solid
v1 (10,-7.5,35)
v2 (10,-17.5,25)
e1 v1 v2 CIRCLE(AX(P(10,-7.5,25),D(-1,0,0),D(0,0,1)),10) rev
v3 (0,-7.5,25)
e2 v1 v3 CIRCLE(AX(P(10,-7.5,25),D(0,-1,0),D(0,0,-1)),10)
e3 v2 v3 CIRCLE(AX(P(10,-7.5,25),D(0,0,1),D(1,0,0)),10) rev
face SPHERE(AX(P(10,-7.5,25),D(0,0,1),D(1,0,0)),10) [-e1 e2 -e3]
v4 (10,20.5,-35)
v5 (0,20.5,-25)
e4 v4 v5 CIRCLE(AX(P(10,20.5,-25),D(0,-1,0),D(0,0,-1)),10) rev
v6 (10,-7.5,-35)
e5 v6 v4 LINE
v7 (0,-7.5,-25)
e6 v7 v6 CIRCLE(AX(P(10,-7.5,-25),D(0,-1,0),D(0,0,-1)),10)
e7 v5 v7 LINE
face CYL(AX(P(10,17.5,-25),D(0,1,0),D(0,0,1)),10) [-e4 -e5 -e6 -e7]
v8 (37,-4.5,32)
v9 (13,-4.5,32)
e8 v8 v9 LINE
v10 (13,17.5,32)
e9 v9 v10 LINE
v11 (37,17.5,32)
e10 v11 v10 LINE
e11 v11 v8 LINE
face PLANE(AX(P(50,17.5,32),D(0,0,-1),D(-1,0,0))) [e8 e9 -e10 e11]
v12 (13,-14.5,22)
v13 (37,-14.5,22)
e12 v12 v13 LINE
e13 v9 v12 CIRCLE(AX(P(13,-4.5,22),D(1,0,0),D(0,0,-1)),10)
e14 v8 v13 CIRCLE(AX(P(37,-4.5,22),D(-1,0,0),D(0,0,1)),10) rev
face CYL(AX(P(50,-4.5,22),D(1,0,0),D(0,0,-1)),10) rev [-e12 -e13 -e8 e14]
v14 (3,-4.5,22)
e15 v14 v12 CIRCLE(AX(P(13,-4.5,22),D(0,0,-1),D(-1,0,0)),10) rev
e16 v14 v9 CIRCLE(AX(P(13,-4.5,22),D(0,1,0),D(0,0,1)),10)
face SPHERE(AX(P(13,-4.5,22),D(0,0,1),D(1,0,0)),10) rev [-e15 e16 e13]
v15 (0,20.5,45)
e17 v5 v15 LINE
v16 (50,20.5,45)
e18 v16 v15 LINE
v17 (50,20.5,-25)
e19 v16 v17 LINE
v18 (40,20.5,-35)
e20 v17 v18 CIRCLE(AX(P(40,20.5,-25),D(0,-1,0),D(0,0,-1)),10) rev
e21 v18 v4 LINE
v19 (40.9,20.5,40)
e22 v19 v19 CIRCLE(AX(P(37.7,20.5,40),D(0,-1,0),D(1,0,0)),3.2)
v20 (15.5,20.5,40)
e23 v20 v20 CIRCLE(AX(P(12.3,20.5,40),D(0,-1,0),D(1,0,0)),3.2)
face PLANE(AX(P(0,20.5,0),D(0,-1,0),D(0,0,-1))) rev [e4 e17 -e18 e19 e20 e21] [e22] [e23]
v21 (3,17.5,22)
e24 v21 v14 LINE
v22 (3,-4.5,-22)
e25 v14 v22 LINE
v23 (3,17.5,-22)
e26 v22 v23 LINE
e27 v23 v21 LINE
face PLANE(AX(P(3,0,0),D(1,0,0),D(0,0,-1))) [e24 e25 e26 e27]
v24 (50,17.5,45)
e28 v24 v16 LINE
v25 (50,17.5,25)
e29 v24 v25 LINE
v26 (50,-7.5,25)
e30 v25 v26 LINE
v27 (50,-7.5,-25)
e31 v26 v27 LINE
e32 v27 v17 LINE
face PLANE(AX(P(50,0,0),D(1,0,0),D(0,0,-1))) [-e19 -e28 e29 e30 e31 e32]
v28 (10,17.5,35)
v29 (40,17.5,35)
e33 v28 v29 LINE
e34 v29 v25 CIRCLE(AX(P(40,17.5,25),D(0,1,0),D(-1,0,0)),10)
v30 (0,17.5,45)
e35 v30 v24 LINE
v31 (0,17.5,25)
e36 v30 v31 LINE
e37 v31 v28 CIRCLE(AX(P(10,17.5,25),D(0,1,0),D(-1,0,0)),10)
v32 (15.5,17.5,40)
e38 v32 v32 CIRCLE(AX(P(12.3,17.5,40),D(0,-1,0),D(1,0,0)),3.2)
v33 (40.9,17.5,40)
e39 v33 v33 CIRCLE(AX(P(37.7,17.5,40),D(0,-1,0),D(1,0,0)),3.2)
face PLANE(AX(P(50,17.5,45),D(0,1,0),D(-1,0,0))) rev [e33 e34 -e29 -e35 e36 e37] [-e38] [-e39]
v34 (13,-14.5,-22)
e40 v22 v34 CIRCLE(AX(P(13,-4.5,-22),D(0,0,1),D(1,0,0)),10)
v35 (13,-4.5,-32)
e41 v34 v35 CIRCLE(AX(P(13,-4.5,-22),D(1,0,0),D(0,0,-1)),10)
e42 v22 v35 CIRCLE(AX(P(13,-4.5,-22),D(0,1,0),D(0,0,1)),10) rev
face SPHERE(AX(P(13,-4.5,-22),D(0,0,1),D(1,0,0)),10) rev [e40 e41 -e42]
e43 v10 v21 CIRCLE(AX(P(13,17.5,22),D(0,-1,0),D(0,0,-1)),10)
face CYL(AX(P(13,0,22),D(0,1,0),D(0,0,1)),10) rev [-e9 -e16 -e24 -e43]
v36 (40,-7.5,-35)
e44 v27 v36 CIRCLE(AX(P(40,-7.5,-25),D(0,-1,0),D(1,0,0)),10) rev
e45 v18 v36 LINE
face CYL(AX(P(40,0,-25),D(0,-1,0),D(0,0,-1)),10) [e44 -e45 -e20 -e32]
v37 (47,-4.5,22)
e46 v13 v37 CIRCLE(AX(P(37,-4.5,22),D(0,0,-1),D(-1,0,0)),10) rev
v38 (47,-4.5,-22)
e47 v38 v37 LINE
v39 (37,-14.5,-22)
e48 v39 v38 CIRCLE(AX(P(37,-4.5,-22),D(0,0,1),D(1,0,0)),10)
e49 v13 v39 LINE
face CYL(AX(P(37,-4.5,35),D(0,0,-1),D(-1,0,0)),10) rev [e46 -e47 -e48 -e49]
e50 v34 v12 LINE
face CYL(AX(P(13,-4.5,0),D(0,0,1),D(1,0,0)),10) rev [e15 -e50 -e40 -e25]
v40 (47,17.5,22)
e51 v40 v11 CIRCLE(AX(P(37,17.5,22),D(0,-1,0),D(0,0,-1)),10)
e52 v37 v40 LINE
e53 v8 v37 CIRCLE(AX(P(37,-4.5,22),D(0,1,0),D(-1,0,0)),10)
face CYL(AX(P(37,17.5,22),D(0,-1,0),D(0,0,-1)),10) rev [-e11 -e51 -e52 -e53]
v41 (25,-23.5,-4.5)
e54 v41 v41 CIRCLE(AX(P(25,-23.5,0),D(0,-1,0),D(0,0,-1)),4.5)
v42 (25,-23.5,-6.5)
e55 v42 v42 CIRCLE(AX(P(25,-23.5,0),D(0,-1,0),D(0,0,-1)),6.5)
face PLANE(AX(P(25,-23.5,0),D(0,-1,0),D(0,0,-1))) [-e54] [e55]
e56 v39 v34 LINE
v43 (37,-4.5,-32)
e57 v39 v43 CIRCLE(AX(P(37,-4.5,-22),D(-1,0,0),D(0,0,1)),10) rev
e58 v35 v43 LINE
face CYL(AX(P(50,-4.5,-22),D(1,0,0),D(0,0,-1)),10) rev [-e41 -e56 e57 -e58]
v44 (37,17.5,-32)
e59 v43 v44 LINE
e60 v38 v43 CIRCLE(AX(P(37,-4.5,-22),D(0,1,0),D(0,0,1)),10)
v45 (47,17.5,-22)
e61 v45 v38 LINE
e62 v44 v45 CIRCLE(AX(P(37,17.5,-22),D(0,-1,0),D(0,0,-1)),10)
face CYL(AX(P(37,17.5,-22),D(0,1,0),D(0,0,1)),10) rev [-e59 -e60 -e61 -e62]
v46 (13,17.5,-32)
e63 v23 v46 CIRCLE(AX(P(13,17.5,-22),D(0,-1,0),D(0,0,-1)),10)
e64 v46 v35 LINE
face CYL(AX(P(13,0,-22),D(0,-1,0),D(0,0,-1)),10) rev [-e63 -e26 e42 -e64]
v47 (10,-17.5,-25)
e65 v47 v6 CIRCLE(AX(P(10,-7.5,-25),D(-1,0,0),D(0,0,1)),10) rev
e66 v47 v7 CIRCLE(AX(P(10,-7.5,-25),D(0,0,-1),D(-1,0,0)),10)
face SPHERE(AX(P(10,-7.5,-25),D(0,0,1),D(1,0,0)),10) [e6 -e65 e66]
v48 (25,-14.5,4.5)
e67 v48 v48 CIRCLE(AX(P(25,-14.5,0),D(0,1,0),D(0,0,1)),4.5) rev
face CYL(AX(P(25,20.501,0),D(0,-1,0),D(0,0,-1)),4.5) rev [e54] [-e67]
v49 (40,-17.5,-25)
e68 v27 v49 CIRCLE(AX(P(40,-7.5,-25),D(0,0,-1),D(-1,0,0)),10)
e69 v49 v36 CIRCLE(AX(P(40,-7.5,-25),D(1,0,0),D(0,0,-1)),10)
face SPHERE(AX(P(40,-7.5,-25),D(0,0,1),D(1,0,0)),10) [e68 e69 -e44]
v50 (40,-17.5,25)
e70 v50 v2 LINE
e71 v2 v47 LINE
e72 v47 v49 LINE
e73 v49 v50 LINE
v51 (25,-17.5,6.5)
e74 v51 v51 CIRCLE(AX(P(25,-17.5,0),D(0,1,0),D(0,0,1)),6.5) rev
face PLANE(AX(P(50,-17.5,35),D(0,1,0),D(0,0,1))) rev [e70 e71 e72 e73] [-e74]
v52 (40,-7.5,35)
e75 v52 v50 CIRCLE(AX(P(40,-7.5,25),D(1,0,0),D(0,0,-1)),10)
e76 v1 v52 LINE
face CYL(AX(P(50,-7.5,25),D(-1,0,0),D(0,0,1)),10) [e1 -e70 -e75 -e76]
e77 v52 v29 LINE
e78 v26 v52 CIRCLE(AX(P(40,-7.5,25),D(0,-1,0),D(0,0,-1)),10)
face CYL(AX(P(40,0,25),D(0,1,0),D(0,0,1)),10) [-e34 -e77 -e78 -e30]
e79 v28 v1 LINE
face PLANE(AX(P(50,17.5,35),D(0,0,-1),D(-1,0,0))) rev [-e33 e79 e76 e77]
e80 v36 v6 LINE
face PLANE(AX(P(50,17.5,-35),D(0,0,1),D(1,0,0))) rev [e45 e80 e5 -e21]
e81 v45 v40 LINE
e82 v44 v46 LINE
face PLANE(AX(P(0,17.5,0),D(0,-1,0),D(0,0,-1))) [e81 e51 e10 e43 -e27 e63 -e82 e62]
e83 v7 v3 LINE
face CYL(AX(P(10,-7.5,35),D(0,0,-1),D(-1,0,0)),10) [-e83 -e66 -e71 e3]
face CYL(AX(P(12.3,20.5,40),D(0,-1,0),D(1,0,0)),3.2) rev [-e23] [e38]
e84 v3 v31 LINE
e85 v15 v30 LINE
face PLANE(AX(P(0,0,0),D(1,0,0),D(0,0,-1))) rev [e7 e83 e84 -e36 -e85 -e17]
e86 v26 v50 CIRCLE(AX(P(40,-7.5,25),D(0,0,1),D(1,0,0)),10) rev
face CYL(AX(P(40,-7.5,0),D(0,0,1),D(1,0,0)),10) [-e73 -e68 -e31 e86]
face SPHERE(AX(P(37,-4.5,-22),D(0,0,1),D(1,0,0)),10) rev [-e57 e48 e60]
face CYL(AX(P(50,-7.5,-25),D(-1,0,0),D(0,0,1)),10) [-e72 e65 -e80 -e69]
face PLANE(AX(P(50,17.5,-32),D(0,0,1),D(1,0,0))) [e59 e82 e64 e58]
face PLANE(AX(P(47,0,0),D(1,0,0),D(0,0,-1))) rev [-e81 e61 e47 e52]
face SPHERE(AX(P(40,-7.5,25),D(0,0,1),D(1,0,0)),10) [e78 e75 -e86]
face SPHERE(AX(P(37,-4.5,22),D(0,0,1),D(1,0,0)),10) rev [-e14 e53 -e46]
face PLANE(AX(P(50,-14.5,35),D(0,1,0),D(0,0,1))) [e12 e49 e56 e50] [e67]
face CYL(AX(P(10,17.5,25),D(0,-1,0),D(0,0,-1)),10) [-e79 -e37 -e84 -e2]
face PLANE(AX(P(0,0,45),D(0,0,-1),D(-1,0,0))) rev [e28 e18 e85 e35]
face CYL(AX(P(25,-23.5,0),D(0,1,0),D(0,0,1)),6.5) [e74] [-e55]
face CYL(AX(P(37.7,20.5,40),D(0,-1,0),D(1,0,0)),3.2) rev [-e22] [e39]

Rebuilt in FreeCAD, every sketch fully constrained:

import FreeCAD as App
import Part
import Sketcher

V = App.Vector
Q = App.Units.Quantity


def edges_at(feature, points):
    """Names of the edges that pass closest to the given points."""
    edges = feature.Shape.Edges
    near = lambda p: min(range(len(edges)), key=lambda i: edges[i].distToShape(Part.Vertex(*p))[0])
    return sorted({f"Edge{near(p) + 1}" for p in points})


def faces_at(feature, points):
    """Names of the faces that lie closest to the given points."""
    faces = feature.Shape.Faces
    near = lambda p: min(range(len(faces)), key=lambda i: faces[i].distToShape(Part.Vertex(*p))[0])
    return sorted({f"Face{near(p) + 1}" for p in points})


def add_polygon(sketch, points):
    """Adds a closed chain of lines whose ends are joined by coincident constraints."""
    first, n = sketch.GeometryCount, len(points)
    for a, b in zip(points, points[1:] + points[:1]):
        sketch.addGeometry(Part.LineSegment(App.Vector(*a, 0), App.Vector(*b, 0)), False)
    for i in range(n):
        sketch.addConstraint(Sketcher.Constraint("Coincident", first + i, 2, first + (i + 1) % n, 1))

doc = App.newDocument("Part")
params = doc.addObject("Spreadsheet::Sheet", "Params")
for row, (alias, value) in enumerate([
    ("sketch1_width", "35 mm"),
    ("sketch1_height", "70 mm"),
    ("pad1_length", "50 mm"),
    ("thickness_wall", "3 mm"),
    ("sketch2_width", "50 mm"),
    ("sketch2_height", "70 mm"),
    ("pad2_length", "3 mm"),
    ("sketch3_diameter", "13 mm"),
    ("pad3_length", "6 mm"),
    ("sketch4_diameter", "9 mm"),
    ("sketch5_width", "50 mm"),
    ("sketch5_height", "3 mm"),
    ("pad4_length", "10 mm"),
    ("sketch6_diameter", "6.4 mm"),
    ("sketch7_diameter", "6.4 mm"),
    ("fillet_radius", "10 mm"),
    ("fillet2_radius", "10 mm"),
], start=1):
    params.set(f"A{row}", alias)
    params.set(f"B{row}", "=" + value)
    params.setAlias(f"B{row}", alias)

body = doc.addObject("PartDesign::Body", "Body")

sketch1 = body.newObject("Sketcher::SketchObject", "Sketch")
sketch1.AttachmentSupport = (doc.getObject("YZ_Plane"), [""])
sketch1.MapMode = "FlatFace"
add_polygon(sketch1, [(18, 35), (-18, 35), (-18, -35), (18, -35)])
sketch1.addConstraint([
    Sketcher.Constraint("Horizontal", 0),
    Sketcher.Constraint("Vertical", 1),
    Sketcher.Constraint("Horizontal", 2),
    Sketcher.Constraint("Vertical", 3),
    Sketcher.Constraint("Symmetric", 0, 2, 2, 2, -1, 1),
    Sketcher.Constraint("DistanceX", 0, 2, 0, 1, Q("35 mm")),
    Sketcher.Constraint("DistanceY", 1, 2, 1, 1, Q("70 mm")),
])
sketch1.setExpression("Constraints[9]", "Params.sketch1_width")
sketch1.setExpression("Constraints[10]", "Params.sketch1_height")
pad1 = body.newObject("PartDesign::Pad", "Pad")
pad1.Profile = sketch1
pad1.setExpression("Length", "Params.pad1_length")
doc.recompute()

thickness = body.newObject("PartDesign::Thickness", "Thickness")
thickness.Base = (pad1, faces_at(pad1, [(25, 17.5, 0)]))
thickness.setExpression("Value", "Params.thickness_wall")
thickness.Reversed = True
thickness.Join = "Intersection"

sketch2 = body.newObject("Sketcher::SketchObject", "Sketch001")
sketch2.AttachmentSupport = (doc.getObject("XZ_Plane"), [""])
sketch2.MapMode = "FlatFace"
sketch2.AttachmentOffset = App.Placement(V(0, 0, -17.5), App.Rotation())
add_polygon(sketch2, [(0, -35), (0, 35), (50, 35), (50, -35)])
sketch2.addConstraint([
    Sketcher.Constraint("Vertical", 0),
    Sketcher.Constraint("Horizontal", 1),
    Sketcher.Constraint("Vertical", 2),
    Sketcher.Constraint("Horizontal", 3),
    Sketcher.Constraint("Symmetric", 0, 2, 3, 2, -1, 1),
    Sketcher.Constraint("DistanceX", 1, 1, 1, 2, Q("50 mm")),
    Sketcher.Constraint("DistanceY", 0, 1, 0, 2, Q("70 mm")),
])
sketch2.setExpression("Constraints[9]", "Params.sketch2_width")
sketch2.setExpression("Constraints[10]", "Params.sketch2_height")
pad2 = body.newObject("PartDesign::Pad", "Pad001")
pad2.Profile = sketch2
pad2.setExpression("Length", "Params.pad2_length")
pad2.Reversed = True

sketch3 = body.newObject("Sketcher::SketchObject", "Sketch002")
sketch3.AttachmentSupport = (doc.getObject("XZ_Plane"), [""])
sketch3.MapMode = "FlatFace"
sketch3.AttachmentOffset = App.Placement(V(0, 0, 17.5), App.Rotation())
sketch3.addGeometry(Part.Circle(V(25, 0, 0), V(0, 0, 1), 6), False)
sketch3.addConstraint([
    Sketcher.Constraint("PointOnObject", 0, 3, -1),
    Sketcher.Constraint("Diameter", 0, Q("13 mm")),
    Sketcher.Constraint("DistanceX", -1, 1, 0, 3, Q("25 mm")),
])
sketch3.setExpression("Constraints[1]", "Params.sketch3_diameter")
pad3 = body.newObject("PartDesign::Pad", "Pad002")
pad3.Profile = sketch3
pad3.setExpression("Length", "Params.pad3_length")

sketch4 = body.newObject("Sketcher::SketchObject", "Sketch003")
sketch4.AttachmentSupport = (doc.getObject("XZ_Plane"), [""])
sketch4.MapMode = "FlatFace"
sketch4.AttachmentOffset = App.Placement(V(0, 0, 23.5), App.Rotation())
sketch4.addGeometry(Part.Circle(V(25, 0, 0), V(0, 0, 1), 4.5), False)
sketch4.addConstraint([
    Sketcher.Constraint("PointOnObject", 0, 3, -1),
    Sketcher.Constraint("Diameter", 0, Q("9 mm")),
    Sketcher.Constraint("DistanceX", -1, 1, 0, 3, Q("25 mm")),
])
sketch4.setExpression("Constraints[1]", "Params.sketch4_diameter")
pocket1 = body.newObject("PartDesign::Pocket", "Pocket")
pocket1.Profile = sketch4
pocket1.Type = "UpToFirst"

sketch5 = body.newObject("Sketcher::SketchObject", "Sketch004")
sketch5.AttachmentSupport = (doc.getObject("XY_Plane"), [""])
sketch5.MapMode = "FlatFace"
sketch5.AttachmentOffset = App.Placement(V(0, 0, 35), App.Rotation())
add_polygon(sketch5, [(0, 20.5), (0, 17.5), (50, 17.5), (50, 20.5)])
sketch5.addConstraint([
    Sketcher.Constraint("Vertical", 0),
    Sketcher.Constraint("Horizontal", 1),
    Sketcher.Constraint("Vertical", 2),
    Sketcher.Constraint("Horizontal", 3),
    Sketcher.Constraint("PointOnObject", 0, 2, -2),
    Sketcher.Constraint("DistanceX", 1, 1, 1, 2, Q("50 mm")),
    Sketcher.Constraint("DistanceY", 0, 2, 0, 1, Q("3 mm")),
    Sketcher.Constraint("DistanceY", -1, 1, 0, 2, Q("17.5 mm")),
])
sketch5.setExpression("Constraints[9]", "Params.sketch5_width")
sketch5.setExpression("Constraints[10]", "Params.sketch5_height")
pad4 = body.newObject("PartDesign::Pad", "Pad003")
pad4.Profile = sketch5
pad4.setExpression("Length", "Params.pad4_length")

sketch6 = body.newObject("Sketcher::SketchObject", "Sketch005")
sketch6.AttachmentSupport = (doc.getObject("XZ_Plane"), [""])
sketch6.MapMode = "FlatFace"
sketch6.AttachmentOffset = App.Placement(V(0, 0, -17.5), App.Rotation())
sketch6.addGeometry(Part.Circle(V(12.3, 40, 0), V(0, 0, 1), 3.2), False)
sketch6.addConstraint([
    Sketcher.Constraint("Diameter", 0, Q("6.4 mm")),
    Sketcher.Constraint("DistanceY", -1, 1, 0, 3, Q("40 mm")),
    Sketcher.Constraint("DistanceX", -1, 1, 0, 3, Q("12.3 mm")),
])
sketch6.setExpression("Constraints[0]", "Params.sketch6_diameter")
pocket2 = body.newObject("PartDesign::Pocket", "Pocket001")
pocket2.Profile = sketch6
pocket2.Type = "ThroughAll"

sketch7 = body.newObject("Sketcher::SketchObject", "Sketch006")
sketch7.AttachmentSupport = (doc.getObject("XZ_Plane"), [""])
sketch7.MapMode = "FlatFace"
sketch7.AttachmentOffset = App.Placement(V(0, 0, -17.5), App.Rotation())
sketch7.addGeometry(Part.Circle(V(37.7, 40, 0), V(0, 0, 1), 3.2), False)
sketch7.addConstraint([
    Sketcher.Constraint("Diameter", 0, Q("6.4 mm")),
    Sketcher.Constraint("DistanceY", -1, 1, 0, 3, Q("40 mm")),
    Sketcher.Constraint("DistanceX", -1, 1, 0, 3, Q("37.7 mm")),
])
sketch7.setExpression("Constraints[0]", "Params.sketch7_diameter")
pocket3 = body.newObject("PartDesign::Pocket", "Pocket002")
pocket3.Profile = sketch7
pocket3.Type = "ThroughAll"
doc.recompute()

fillet = body.newObject("PartDesign::Fillet", "Fillet")
fillet.Base = (pocket3, edges_at(pocket3, [
    (50, -17.5, 0),
    (50, 1.5, -35),
    (0, -17.5, 0),
    (0, 0, 35),
    (50, 0, 35),
    (0, 1.5, -35),
    (25, -17.5, -35),
    (25, -17.5, 35),
]))
fillet.setExpression("Radius", "Params.fillet_radius")
doc.recompute()

fillet2 = body.newObject("PartDesign::Fillet", "Fillet001")
fillet2.Base = (fillet, edges_at(fillet, [
    (3, 1.5, -32),
    (25, -14.5, -32),
    (3, 1.5, 32),
    (3, -14.5, 0),
    (25, -14.5, 32),
    (47, 1.5, -32),
    (47, 1.5, 32),
    (47, -14.5, 0),
]))
fillet2.setExpression("Radius", "Params.fillet2_radius")

doc.recompute()
